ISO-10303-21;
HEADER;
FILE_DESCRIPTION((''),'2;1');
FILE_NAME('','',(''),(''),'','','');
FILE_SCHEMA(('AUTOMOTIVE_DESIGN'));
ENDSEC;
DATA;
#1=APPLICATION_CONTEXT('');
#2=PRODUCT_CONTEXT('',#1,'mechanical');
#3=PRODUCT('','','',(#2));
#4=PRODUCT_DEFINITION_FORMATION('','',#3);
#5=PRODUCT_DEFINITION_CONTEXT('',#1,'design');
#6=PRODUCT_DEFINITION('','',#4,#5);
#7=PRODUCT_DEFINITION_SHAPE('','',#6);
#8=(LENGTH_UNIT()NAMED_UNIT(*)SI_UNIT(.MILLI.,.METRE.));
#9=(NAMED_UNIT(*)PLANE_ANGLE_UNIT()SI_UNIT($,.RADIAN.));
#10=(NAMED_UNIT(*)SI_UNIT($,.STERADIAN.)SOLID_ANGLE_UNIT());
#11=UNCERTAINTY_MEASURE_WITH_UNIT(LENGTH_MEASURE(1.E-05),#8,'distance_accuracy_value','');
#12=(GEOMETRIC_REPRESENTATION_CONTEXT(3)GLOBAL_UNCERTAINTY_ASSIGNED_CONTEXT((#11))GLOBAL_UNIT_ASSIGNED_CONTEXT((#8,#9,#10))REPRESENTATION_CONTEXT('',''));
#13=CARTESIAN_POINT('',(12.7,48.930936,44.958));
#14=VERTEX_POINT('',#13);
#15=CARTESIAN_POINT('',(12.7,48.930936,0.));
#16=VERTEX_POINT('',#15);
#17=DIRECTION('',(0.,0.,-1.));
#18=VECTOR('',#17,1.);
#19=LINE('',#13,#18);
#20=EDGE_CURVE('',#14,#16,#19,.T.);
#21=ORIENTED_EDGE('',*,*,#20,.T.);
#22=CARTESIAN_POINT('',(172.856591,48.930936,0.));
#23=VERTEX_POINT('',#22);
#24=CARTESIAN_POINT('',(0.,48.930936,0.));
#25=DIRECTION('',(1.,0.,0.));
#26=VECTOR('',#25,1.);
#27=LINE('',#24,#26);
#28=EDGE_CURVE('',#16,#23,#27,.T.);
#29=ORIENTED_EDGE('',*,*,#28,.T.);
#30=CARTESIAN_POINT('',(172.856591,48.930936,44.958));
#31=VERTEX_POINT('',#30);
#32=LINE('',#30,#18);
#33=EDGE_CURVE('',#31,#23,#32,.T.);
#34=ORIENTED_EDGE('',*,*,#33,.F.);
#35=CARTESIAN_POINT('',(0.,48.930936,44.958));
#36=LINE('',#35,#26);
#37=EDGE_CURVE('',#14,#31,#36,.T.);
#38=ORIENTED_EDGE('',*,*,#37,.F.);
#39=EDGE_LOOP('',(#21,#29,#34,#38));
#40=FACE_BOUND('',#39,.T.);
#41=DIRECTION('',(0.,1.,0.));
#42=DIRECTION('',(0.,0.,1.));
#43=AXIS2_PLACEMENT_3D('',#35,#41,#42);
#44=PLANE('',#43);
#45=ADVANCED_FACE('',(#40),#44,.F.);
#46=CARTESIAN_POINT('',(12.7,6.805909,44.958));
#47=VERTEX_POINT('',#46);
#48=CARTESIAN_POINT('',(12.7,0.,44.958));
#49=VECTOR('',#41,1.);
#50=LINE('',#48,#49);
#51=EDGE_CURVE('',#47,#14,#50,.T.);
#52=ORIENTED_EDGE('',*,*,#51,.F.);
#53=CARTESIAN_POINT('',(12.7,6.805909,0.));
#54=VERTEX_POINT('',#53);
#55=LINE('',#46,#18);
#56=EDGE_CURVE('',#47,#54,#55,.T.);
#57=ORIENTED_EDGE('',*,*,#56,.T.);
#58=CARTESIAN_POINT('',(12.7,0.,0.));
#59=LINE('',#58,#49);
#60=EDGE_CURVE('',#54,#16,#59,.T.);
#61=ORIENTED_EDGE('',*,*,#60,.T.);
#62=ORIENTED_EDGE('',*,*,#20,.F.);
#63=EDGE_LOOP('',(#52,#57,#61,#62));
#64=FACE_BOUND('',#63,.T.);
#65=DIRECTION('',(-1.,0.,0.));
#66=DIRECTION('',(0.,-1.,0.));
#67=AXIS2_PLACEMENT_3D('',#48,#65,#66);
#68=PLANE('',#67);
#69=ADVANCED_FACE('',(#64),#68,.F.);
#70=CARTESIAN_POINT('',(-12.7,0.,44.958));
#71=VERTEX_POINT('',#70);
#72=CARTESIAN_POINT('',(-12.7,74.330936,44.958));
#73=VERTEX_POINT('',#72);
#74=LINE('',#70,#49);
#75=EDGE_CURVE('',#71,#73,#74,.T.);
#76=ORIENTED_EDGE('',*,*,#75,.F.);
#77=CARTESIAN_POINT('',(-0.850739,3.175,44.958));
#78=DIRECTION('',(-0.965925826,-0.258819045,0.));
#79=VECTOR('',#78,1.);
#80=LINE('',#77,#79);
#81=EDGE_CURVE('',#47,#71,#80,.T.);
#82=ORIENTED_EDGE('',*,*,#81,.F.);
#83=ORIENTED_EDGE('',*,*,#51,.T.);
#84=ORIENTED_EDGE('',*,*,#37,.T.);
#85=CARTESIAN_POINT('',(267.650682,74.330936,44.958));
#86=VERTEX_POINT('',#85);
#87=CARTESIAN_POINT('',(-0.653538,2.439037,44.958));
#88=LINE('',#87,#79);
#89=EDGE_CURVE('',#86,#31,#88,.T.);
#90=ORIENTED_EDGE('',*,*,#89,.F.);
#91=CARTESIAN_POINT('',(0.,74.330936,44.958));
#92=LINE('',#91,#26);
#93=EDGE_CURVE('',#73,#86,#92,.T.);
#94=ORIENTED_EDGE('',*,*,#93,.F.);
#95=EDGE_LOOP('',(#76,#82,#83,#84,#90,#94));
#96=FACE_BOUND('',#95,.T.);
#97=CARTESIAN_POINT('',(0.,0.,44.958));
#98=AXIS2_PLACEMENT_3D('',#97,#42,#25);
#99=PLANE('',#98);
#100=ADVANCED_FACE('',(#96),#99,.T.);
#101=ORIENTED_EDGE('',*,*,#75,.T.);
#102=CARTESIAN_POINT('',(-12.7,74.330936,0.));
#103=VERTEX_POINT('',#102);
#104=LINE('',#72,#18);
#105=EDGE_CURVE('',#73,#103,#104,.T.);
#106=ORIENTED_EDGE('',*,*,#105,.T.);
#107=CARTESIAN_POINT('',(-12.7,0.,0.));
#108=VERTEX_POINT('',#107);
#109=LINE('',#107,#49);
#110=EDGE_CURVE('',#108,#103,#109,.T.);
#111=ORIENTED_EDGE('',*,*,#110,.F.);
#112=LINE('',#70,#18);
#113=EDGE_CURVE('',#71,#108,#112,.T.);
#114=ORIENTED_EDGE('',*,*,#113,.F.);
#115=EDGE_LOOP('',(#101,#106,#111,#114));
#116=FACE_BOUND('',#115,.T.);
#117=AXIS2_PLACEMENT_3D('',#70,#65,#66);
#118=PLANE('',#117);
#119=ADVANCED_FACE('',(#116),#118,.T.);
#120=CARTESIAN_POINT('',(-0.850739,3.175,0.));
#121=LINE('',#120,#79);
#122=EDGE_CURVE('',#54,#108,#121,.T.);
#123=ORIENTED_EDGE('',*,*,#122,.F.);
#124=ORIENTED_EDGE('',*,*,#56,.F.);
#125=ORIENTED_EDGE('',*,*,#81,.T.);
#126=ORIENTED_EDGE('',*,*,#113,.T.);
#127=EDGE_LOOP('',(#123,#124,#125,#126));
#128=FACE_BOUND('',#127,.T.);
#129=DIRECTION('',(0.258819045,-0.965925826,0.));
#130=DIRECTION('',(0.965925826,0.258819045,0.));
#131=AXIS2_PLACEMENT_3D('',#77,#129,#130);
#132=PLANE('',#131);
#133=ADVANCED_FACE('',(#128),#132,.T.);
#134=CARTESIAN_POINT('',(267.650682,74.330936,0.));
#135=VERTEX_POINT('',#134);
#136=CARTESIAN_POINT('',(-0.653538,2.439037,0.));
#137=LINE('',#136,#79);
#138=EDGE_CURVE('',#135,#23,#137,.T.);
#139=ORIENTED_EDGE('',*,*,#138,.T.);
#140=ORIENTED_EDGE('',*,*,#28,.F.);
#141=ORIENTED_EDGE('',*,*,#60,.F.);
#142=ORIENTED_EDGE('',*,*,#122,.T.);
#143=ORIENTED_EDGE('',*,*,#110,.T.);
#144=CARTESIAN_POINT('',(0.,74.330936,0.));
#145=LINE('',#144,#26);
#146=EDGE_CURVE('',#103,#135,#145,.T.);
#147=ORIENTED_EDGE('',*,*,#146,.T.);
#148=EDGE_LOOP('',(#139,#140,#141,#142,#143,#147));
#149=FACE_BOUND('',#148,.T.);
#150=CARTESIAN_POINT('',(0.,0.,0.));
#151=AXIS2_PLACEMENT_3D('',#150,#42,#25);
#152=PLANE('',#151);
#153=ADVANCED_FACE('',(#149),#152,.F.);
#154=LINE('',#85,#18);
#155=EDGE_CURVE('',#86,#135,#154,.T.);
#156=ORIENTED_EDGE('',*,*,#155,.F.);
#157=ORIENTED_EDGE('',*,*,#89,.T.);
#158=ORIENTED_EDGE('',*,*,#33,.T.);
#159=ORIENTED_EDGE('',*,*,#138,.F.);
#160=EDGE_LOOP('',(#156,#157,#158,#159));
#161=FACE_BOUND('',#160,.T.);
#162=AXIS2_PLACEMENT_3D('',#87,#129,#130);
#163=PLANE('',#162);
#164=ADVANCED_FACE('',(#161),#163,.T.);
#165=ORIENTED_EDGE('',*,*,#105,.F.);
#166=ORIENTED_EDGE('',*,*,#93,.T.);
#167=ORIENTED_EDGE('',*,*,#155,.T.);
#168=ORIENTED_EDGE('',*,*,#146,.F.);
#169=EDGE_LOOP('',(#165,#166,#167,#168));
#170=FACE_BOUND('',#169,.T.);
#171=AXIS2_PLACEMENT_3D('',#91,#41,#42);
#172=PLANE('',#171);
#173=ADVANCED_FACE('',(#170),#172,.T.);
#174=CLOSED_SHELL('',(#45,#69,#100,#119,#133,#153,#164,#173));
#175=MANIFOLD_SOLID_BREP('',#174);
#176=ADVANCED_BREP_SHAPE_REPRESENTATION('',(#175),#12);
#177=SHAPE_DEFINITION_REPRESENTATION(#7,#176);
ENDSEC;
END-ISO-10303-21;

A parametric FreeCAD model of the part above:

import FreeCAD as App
import Part
import Sketcher

V = App.Vector
Q = App.Units.Quantity


def add_polygon(sketch, points):
    """Adds a closed chain of lines whose ends are joined by coincident constraints."""
    first, n = sketch.GeometryCount, len(points)
    for a, b in zip(points, points[1:] + points[:1]):
        sketch.addGeometry(Part.LineSegment(App.Vector(*a, 0), App.Vector(*b, 0)), False)
    for i in range(n):
        sketch.addConstraint(Sketcher.Constraint("Coincident", first + i, 2, first + (i + 1) % n, 1))

doc = App.newDocument("Part")
body = doc.addObject("PartDesign::Body", "Body")

sketch1 = body.newObject("Sketcher::SketchObject", "Sketch")
sketch1.AttachmentSupport = (doc.getObject("XY_Plane"), [""])
sketch1.MapMode = "FlatFace"
add_polygon(sketch1, [(-13, 0), (13, 7), (13, 49), (173, 49), (268, 74), (-13, 74)])
sketch1.addConstraint(Sketcher.Constraint("Vertical", 1))
sketch1.addConstraint(Sketcher.Constraint("Horizontal", 2))
sketch1.addConstraint(Sketcher.Constraint("Horizontal", 4))
sketch1.addConstraint(Sketcher.Constraint("Vertical", 5))
sketch1.addConstraint(Sketcher.Constraint("PointOnObject", 5, 2, -1))
sketch1.addConstraint(Sketcher.Constraint("Parallel", 0, 3))
sketch1.addConstraint(Sketcher.Constraint("Angle", 0, Q("15 deg")))
sketch1.addConstraint(Sketcher.Constraint("DistanceY", 2, 2, 3, 2, Q("1 in")))
sketch1.addConstraint(Sketcher.Constraint("DistanceX", 4, 2, 1, 2, Q("1 in")))
sketch1.addConstraint(Sketcher.Constraint("DistanceX", -1, 1, 0, 2, Q("0.5 in")))
sketch1.addConstraint(Sketcher.Constraint("DistanceX", 2, 1, 2, 2, 160.156591))
sketch1.addConstraint(Sketcher.Constraint("DistanceY", 1, 1, 1, 2, 42.125027))
pad1 = body.newObject("PartDesign::Pad", "Pad")
pad1.Profile = sketch1
pad1.Length = Q("1.77 in")

doc.recompute()
